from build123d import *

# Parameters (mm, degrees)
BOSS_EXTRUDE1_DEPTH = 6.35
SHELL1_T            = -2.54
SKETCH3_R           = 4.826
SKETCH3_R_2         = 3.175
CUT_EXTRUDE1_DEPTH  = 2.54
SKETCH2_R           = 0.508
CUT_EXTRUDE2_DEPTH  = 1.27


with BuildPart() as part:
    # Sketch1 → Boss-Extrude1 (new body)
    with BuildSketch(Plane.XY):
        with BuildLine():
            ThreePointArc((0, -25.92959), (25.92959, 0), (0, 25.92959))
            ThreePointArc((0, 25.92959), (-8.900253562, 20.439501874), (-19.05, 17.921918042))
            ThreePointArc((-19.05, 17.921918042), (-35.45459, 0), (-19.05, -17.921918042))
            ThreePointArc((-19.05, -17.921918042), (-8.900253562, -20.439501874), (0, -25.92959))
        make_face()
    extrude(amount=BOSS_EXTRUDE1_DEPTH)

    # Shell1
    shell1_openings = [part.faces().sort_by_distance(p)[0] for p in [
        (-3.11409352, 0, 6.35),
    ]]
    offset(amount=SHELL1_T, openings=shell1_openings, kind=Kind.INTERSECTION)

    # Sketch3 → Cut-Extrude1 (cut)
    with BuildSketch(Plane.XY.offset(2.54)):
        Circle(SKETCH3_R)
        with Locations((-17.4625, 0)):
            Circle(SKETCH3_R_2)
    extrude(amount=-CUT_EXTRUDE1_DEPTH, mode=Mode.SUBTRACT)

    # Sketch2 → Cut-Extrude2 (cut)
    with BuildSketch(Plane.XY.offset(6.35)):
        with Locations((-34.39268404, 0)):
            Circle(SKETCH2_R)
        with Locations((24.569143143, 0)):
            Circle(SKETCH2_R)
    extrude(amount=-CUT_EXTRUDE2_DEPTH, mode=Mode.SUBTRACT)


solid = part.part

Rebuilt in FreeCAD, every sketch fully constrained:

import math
import FreeCAD as App
import Part
import Sketcher
from FreeCAD import Vector
Q = App.Units.Quantity


def faces_at(feature, points):
    """Names of the faces that lie closest to the given points."""
    faces = feature.Shape.Faces
    near = lambda p: min(range(len(faces)), key=lambda i: faces[i].distToShape(Part.Vertex(*p))[0])
    return sorted({f"Face{near(p) + 1}" for p in points})

doc = App.newDocument("Part")
params = doc.addObject("Spreadsheet::Sheet", "Params")
for row, (alias, value) in enumerate([
    ("pad1_length", "0.25 in"),
    ("thickness_wall", "0.1 in"),
    ("sketch2_diameter", "0.38 in"),
    ("sketch2_diameter2", "0.25 in"),
    ("pocket1_length", "0.1 in"),
    ("sketch3_diameter", "0.04 in"),
    ("pocket2_length", "0.05 in"),
], start=1):
    params.set(f"A{row}", alias)
    params.set(f"B{row}", "=" + value)
    params.setAlias(f"B{row}", alias)

body = doc.addObject("PartDesign::Body", "Body")

sketch1 = body.newObject("Sketcher::SketchObject", "Sketch")
sketch1.AttachmentSupport = (doc.getObject("XY_Plane"), [""])
sketch1.MapMode = "FlatFace"
sketch1.addGeometry(Part.ArcOfCircle(Part.Circle(Vector(0, 0, 0), Vector(0, 0, 1), 26), math.radians(-90), math.radians(90)), False)
sketch1.addGeometry(Part.ArcOfCircle(Part.Circle(Vector(-22, 52, 0), Vector(0, 0, 1), 34), math.radians(-85), math.radians(-49)), False)
sketch1.addGeometry(Part.ArcOfCircle(Part.Circle(Vector(-17, 0, 0), Vector(0, 0, 1), 18), math.radians(95), math.radians(265)), False)
sketch1.addGeometry(Part.ArcOfCircle(Part.Circle(Vector(-22, -52, 0), Vector(0, 0, 1), 34), math.radians(49), math.radians(85)), False)
sketch1.addConstraint(Sketcher.Constraint("Coincident", 0, 2, 1, 2))
sketch1.addConstraint(Sketcher.Constraint("Tangent", 1, 1, 2, 1))
sketch1.addConstraint(Sketcher.Constraint("Tangent", 2, 2, 3, 2))
sketch1.addConstraint(Sketcher.Constraint("Coincident", 3, 1, 0, 1))
sketch1.addConstraint(Sketcher.Constraint("Coincident", 0, 3, -1, 1))
sketch1.addConstraint(Sketcher.Constraint("Equal", 1, 3))
sketch1.addConstraint(Sketcher.Constraint("Symmetric", 1, 3, 3, 3, -1))
sketch1.addConstraint(Sketcher.Constraint("PointOnObject", 0, 2, -2))
sketch1.addConstraint(Sketcher.Constraint("DistanceX", 1, 1, -1, 1, Q("0.75 in")))
sketch1.addConstraint(Sketcher.Constraint("DistanceX", 2, 3, -1, 1, Q("0.6875 in")))
sketch1.addConstraint(Sketcher.Constraint("Radius", 0, 25.92959))
sketch1.addConstraint(Sketcher.Constraint("Radius", 2, 17.99209))
pad1 = body.newObject("PartDesign::Pad", "Pad")
pad1.Profile = sketch1
pad1.setExpression("Length", "Params.pad1_length")
doc.recompute()

thickness = body.newObject("PartDesign::Thickness", "Thickness")
thickness.Base = (pad1, faces_at(pad1, [(-4.763, 0, 6.35)]))
thickness.setExpression("Value", "Params.thickness_wall")
thickness.Reversed = True
thickness.Join = "Intersection"

sketch2 = body.newObject("Sketcher::SketchObject", "Sketch001")
sketch2.AttachmentSupport = (doc.getObject("XY_Plane"), [""])
sketch2.MapMode = "FlatFace"
sketch2.AttachmentOffset = App.Placement(Vector(0, 0, 0.1 * 25.4), App.Rotation())
sketch2.addGeometry(Part.Circle(Vector(0, 0, 0), Vector(0, 0, 1), 4.8), False)
sketch2.addGeometry(Part.Circle(Vector(-17.5, 0, 0), Vector(0, 0, 1), 3.2), False)
sketch2.addConstraint(Sketcher.Constraint("Coincident", 0, 3, -1, 1))
sketch2.addConstraint(Sketcher.Constraint("PointOnObject", 1, 3, -1))
sketch2.addConstraint(Sketcher.Constraint("Diameter", 0, Q("0.38 in")))
sketch2.addConstraint(Sketcher.Constraint("Diameter", 1, Q("0.25 in")))
sketch2.addConstraint(Sketcher.Constraint("DistanceX", 1, 3, -1, 1, Q("0.6875 in")))
sketch2.setExpression("Constraints[2]", "Params.sketch2_diameter")
sketch2.setExpression("Constraints[3]", "Params.sketch2_diameter2")
pocket1 = body.newObject("PartDesign::Pocket", "Pocket")
pocket1.Profile = sketch2
pocket1.setExpression("Length", "Params.pocket1_length")

sketch3 = body.newObject("Sketcher::SketchObject", "Sketch002")
sketch3.AttachmentSupport = (doc.getObject("XY_Plane"), [""])
sketch3.MapMode = "FlatFace"
sketch3.AttachmentOffset = App.Placement(Vector(0, 0, 0.25 * 25.4), App.Rotation())
sketch3.addGeometry(Part.Circle(Vector(-34.4, 0, 0), Vector(0, 0, 1), 0.5), False)
sketch3.addGeometry(Part.Circle(Vector(24.6, 0, 0), Vector(0, 0, 1), 0.5), False)
sketch3.addConstraint(Sketcher.Constraint("Equal", 0, 1))
sketch3.addConstraint(Sketcher.Constraint("PointOnObject", 0, 3, -1))
sketch3.addConstraint(Sketcher.Constraint("PointOnObject", 1, 3, -1))
sketch3.addConstraint(Sketcher.Constraint("Diameter", 0, Q("0.04 in")))
sketch3.addConstraint(Sketcher.Constraint("DistanceX", 0, 3, -1, 1, 34.392684))
sketch3.addConstraint(Sketcher.Constraint("DistanceX", -1, 1, 1, 3, 24.569143))
sketch3.setExpression("Constraints[3]", "Params.sketch3_diameter")
pocket2 = body.newObject("PartDesign::Pocket", "Pocket001")
pocket2.Profile = sketch3
pocket2.setExpression("Length", "Params.pocket2_length")

doc.recompute()
